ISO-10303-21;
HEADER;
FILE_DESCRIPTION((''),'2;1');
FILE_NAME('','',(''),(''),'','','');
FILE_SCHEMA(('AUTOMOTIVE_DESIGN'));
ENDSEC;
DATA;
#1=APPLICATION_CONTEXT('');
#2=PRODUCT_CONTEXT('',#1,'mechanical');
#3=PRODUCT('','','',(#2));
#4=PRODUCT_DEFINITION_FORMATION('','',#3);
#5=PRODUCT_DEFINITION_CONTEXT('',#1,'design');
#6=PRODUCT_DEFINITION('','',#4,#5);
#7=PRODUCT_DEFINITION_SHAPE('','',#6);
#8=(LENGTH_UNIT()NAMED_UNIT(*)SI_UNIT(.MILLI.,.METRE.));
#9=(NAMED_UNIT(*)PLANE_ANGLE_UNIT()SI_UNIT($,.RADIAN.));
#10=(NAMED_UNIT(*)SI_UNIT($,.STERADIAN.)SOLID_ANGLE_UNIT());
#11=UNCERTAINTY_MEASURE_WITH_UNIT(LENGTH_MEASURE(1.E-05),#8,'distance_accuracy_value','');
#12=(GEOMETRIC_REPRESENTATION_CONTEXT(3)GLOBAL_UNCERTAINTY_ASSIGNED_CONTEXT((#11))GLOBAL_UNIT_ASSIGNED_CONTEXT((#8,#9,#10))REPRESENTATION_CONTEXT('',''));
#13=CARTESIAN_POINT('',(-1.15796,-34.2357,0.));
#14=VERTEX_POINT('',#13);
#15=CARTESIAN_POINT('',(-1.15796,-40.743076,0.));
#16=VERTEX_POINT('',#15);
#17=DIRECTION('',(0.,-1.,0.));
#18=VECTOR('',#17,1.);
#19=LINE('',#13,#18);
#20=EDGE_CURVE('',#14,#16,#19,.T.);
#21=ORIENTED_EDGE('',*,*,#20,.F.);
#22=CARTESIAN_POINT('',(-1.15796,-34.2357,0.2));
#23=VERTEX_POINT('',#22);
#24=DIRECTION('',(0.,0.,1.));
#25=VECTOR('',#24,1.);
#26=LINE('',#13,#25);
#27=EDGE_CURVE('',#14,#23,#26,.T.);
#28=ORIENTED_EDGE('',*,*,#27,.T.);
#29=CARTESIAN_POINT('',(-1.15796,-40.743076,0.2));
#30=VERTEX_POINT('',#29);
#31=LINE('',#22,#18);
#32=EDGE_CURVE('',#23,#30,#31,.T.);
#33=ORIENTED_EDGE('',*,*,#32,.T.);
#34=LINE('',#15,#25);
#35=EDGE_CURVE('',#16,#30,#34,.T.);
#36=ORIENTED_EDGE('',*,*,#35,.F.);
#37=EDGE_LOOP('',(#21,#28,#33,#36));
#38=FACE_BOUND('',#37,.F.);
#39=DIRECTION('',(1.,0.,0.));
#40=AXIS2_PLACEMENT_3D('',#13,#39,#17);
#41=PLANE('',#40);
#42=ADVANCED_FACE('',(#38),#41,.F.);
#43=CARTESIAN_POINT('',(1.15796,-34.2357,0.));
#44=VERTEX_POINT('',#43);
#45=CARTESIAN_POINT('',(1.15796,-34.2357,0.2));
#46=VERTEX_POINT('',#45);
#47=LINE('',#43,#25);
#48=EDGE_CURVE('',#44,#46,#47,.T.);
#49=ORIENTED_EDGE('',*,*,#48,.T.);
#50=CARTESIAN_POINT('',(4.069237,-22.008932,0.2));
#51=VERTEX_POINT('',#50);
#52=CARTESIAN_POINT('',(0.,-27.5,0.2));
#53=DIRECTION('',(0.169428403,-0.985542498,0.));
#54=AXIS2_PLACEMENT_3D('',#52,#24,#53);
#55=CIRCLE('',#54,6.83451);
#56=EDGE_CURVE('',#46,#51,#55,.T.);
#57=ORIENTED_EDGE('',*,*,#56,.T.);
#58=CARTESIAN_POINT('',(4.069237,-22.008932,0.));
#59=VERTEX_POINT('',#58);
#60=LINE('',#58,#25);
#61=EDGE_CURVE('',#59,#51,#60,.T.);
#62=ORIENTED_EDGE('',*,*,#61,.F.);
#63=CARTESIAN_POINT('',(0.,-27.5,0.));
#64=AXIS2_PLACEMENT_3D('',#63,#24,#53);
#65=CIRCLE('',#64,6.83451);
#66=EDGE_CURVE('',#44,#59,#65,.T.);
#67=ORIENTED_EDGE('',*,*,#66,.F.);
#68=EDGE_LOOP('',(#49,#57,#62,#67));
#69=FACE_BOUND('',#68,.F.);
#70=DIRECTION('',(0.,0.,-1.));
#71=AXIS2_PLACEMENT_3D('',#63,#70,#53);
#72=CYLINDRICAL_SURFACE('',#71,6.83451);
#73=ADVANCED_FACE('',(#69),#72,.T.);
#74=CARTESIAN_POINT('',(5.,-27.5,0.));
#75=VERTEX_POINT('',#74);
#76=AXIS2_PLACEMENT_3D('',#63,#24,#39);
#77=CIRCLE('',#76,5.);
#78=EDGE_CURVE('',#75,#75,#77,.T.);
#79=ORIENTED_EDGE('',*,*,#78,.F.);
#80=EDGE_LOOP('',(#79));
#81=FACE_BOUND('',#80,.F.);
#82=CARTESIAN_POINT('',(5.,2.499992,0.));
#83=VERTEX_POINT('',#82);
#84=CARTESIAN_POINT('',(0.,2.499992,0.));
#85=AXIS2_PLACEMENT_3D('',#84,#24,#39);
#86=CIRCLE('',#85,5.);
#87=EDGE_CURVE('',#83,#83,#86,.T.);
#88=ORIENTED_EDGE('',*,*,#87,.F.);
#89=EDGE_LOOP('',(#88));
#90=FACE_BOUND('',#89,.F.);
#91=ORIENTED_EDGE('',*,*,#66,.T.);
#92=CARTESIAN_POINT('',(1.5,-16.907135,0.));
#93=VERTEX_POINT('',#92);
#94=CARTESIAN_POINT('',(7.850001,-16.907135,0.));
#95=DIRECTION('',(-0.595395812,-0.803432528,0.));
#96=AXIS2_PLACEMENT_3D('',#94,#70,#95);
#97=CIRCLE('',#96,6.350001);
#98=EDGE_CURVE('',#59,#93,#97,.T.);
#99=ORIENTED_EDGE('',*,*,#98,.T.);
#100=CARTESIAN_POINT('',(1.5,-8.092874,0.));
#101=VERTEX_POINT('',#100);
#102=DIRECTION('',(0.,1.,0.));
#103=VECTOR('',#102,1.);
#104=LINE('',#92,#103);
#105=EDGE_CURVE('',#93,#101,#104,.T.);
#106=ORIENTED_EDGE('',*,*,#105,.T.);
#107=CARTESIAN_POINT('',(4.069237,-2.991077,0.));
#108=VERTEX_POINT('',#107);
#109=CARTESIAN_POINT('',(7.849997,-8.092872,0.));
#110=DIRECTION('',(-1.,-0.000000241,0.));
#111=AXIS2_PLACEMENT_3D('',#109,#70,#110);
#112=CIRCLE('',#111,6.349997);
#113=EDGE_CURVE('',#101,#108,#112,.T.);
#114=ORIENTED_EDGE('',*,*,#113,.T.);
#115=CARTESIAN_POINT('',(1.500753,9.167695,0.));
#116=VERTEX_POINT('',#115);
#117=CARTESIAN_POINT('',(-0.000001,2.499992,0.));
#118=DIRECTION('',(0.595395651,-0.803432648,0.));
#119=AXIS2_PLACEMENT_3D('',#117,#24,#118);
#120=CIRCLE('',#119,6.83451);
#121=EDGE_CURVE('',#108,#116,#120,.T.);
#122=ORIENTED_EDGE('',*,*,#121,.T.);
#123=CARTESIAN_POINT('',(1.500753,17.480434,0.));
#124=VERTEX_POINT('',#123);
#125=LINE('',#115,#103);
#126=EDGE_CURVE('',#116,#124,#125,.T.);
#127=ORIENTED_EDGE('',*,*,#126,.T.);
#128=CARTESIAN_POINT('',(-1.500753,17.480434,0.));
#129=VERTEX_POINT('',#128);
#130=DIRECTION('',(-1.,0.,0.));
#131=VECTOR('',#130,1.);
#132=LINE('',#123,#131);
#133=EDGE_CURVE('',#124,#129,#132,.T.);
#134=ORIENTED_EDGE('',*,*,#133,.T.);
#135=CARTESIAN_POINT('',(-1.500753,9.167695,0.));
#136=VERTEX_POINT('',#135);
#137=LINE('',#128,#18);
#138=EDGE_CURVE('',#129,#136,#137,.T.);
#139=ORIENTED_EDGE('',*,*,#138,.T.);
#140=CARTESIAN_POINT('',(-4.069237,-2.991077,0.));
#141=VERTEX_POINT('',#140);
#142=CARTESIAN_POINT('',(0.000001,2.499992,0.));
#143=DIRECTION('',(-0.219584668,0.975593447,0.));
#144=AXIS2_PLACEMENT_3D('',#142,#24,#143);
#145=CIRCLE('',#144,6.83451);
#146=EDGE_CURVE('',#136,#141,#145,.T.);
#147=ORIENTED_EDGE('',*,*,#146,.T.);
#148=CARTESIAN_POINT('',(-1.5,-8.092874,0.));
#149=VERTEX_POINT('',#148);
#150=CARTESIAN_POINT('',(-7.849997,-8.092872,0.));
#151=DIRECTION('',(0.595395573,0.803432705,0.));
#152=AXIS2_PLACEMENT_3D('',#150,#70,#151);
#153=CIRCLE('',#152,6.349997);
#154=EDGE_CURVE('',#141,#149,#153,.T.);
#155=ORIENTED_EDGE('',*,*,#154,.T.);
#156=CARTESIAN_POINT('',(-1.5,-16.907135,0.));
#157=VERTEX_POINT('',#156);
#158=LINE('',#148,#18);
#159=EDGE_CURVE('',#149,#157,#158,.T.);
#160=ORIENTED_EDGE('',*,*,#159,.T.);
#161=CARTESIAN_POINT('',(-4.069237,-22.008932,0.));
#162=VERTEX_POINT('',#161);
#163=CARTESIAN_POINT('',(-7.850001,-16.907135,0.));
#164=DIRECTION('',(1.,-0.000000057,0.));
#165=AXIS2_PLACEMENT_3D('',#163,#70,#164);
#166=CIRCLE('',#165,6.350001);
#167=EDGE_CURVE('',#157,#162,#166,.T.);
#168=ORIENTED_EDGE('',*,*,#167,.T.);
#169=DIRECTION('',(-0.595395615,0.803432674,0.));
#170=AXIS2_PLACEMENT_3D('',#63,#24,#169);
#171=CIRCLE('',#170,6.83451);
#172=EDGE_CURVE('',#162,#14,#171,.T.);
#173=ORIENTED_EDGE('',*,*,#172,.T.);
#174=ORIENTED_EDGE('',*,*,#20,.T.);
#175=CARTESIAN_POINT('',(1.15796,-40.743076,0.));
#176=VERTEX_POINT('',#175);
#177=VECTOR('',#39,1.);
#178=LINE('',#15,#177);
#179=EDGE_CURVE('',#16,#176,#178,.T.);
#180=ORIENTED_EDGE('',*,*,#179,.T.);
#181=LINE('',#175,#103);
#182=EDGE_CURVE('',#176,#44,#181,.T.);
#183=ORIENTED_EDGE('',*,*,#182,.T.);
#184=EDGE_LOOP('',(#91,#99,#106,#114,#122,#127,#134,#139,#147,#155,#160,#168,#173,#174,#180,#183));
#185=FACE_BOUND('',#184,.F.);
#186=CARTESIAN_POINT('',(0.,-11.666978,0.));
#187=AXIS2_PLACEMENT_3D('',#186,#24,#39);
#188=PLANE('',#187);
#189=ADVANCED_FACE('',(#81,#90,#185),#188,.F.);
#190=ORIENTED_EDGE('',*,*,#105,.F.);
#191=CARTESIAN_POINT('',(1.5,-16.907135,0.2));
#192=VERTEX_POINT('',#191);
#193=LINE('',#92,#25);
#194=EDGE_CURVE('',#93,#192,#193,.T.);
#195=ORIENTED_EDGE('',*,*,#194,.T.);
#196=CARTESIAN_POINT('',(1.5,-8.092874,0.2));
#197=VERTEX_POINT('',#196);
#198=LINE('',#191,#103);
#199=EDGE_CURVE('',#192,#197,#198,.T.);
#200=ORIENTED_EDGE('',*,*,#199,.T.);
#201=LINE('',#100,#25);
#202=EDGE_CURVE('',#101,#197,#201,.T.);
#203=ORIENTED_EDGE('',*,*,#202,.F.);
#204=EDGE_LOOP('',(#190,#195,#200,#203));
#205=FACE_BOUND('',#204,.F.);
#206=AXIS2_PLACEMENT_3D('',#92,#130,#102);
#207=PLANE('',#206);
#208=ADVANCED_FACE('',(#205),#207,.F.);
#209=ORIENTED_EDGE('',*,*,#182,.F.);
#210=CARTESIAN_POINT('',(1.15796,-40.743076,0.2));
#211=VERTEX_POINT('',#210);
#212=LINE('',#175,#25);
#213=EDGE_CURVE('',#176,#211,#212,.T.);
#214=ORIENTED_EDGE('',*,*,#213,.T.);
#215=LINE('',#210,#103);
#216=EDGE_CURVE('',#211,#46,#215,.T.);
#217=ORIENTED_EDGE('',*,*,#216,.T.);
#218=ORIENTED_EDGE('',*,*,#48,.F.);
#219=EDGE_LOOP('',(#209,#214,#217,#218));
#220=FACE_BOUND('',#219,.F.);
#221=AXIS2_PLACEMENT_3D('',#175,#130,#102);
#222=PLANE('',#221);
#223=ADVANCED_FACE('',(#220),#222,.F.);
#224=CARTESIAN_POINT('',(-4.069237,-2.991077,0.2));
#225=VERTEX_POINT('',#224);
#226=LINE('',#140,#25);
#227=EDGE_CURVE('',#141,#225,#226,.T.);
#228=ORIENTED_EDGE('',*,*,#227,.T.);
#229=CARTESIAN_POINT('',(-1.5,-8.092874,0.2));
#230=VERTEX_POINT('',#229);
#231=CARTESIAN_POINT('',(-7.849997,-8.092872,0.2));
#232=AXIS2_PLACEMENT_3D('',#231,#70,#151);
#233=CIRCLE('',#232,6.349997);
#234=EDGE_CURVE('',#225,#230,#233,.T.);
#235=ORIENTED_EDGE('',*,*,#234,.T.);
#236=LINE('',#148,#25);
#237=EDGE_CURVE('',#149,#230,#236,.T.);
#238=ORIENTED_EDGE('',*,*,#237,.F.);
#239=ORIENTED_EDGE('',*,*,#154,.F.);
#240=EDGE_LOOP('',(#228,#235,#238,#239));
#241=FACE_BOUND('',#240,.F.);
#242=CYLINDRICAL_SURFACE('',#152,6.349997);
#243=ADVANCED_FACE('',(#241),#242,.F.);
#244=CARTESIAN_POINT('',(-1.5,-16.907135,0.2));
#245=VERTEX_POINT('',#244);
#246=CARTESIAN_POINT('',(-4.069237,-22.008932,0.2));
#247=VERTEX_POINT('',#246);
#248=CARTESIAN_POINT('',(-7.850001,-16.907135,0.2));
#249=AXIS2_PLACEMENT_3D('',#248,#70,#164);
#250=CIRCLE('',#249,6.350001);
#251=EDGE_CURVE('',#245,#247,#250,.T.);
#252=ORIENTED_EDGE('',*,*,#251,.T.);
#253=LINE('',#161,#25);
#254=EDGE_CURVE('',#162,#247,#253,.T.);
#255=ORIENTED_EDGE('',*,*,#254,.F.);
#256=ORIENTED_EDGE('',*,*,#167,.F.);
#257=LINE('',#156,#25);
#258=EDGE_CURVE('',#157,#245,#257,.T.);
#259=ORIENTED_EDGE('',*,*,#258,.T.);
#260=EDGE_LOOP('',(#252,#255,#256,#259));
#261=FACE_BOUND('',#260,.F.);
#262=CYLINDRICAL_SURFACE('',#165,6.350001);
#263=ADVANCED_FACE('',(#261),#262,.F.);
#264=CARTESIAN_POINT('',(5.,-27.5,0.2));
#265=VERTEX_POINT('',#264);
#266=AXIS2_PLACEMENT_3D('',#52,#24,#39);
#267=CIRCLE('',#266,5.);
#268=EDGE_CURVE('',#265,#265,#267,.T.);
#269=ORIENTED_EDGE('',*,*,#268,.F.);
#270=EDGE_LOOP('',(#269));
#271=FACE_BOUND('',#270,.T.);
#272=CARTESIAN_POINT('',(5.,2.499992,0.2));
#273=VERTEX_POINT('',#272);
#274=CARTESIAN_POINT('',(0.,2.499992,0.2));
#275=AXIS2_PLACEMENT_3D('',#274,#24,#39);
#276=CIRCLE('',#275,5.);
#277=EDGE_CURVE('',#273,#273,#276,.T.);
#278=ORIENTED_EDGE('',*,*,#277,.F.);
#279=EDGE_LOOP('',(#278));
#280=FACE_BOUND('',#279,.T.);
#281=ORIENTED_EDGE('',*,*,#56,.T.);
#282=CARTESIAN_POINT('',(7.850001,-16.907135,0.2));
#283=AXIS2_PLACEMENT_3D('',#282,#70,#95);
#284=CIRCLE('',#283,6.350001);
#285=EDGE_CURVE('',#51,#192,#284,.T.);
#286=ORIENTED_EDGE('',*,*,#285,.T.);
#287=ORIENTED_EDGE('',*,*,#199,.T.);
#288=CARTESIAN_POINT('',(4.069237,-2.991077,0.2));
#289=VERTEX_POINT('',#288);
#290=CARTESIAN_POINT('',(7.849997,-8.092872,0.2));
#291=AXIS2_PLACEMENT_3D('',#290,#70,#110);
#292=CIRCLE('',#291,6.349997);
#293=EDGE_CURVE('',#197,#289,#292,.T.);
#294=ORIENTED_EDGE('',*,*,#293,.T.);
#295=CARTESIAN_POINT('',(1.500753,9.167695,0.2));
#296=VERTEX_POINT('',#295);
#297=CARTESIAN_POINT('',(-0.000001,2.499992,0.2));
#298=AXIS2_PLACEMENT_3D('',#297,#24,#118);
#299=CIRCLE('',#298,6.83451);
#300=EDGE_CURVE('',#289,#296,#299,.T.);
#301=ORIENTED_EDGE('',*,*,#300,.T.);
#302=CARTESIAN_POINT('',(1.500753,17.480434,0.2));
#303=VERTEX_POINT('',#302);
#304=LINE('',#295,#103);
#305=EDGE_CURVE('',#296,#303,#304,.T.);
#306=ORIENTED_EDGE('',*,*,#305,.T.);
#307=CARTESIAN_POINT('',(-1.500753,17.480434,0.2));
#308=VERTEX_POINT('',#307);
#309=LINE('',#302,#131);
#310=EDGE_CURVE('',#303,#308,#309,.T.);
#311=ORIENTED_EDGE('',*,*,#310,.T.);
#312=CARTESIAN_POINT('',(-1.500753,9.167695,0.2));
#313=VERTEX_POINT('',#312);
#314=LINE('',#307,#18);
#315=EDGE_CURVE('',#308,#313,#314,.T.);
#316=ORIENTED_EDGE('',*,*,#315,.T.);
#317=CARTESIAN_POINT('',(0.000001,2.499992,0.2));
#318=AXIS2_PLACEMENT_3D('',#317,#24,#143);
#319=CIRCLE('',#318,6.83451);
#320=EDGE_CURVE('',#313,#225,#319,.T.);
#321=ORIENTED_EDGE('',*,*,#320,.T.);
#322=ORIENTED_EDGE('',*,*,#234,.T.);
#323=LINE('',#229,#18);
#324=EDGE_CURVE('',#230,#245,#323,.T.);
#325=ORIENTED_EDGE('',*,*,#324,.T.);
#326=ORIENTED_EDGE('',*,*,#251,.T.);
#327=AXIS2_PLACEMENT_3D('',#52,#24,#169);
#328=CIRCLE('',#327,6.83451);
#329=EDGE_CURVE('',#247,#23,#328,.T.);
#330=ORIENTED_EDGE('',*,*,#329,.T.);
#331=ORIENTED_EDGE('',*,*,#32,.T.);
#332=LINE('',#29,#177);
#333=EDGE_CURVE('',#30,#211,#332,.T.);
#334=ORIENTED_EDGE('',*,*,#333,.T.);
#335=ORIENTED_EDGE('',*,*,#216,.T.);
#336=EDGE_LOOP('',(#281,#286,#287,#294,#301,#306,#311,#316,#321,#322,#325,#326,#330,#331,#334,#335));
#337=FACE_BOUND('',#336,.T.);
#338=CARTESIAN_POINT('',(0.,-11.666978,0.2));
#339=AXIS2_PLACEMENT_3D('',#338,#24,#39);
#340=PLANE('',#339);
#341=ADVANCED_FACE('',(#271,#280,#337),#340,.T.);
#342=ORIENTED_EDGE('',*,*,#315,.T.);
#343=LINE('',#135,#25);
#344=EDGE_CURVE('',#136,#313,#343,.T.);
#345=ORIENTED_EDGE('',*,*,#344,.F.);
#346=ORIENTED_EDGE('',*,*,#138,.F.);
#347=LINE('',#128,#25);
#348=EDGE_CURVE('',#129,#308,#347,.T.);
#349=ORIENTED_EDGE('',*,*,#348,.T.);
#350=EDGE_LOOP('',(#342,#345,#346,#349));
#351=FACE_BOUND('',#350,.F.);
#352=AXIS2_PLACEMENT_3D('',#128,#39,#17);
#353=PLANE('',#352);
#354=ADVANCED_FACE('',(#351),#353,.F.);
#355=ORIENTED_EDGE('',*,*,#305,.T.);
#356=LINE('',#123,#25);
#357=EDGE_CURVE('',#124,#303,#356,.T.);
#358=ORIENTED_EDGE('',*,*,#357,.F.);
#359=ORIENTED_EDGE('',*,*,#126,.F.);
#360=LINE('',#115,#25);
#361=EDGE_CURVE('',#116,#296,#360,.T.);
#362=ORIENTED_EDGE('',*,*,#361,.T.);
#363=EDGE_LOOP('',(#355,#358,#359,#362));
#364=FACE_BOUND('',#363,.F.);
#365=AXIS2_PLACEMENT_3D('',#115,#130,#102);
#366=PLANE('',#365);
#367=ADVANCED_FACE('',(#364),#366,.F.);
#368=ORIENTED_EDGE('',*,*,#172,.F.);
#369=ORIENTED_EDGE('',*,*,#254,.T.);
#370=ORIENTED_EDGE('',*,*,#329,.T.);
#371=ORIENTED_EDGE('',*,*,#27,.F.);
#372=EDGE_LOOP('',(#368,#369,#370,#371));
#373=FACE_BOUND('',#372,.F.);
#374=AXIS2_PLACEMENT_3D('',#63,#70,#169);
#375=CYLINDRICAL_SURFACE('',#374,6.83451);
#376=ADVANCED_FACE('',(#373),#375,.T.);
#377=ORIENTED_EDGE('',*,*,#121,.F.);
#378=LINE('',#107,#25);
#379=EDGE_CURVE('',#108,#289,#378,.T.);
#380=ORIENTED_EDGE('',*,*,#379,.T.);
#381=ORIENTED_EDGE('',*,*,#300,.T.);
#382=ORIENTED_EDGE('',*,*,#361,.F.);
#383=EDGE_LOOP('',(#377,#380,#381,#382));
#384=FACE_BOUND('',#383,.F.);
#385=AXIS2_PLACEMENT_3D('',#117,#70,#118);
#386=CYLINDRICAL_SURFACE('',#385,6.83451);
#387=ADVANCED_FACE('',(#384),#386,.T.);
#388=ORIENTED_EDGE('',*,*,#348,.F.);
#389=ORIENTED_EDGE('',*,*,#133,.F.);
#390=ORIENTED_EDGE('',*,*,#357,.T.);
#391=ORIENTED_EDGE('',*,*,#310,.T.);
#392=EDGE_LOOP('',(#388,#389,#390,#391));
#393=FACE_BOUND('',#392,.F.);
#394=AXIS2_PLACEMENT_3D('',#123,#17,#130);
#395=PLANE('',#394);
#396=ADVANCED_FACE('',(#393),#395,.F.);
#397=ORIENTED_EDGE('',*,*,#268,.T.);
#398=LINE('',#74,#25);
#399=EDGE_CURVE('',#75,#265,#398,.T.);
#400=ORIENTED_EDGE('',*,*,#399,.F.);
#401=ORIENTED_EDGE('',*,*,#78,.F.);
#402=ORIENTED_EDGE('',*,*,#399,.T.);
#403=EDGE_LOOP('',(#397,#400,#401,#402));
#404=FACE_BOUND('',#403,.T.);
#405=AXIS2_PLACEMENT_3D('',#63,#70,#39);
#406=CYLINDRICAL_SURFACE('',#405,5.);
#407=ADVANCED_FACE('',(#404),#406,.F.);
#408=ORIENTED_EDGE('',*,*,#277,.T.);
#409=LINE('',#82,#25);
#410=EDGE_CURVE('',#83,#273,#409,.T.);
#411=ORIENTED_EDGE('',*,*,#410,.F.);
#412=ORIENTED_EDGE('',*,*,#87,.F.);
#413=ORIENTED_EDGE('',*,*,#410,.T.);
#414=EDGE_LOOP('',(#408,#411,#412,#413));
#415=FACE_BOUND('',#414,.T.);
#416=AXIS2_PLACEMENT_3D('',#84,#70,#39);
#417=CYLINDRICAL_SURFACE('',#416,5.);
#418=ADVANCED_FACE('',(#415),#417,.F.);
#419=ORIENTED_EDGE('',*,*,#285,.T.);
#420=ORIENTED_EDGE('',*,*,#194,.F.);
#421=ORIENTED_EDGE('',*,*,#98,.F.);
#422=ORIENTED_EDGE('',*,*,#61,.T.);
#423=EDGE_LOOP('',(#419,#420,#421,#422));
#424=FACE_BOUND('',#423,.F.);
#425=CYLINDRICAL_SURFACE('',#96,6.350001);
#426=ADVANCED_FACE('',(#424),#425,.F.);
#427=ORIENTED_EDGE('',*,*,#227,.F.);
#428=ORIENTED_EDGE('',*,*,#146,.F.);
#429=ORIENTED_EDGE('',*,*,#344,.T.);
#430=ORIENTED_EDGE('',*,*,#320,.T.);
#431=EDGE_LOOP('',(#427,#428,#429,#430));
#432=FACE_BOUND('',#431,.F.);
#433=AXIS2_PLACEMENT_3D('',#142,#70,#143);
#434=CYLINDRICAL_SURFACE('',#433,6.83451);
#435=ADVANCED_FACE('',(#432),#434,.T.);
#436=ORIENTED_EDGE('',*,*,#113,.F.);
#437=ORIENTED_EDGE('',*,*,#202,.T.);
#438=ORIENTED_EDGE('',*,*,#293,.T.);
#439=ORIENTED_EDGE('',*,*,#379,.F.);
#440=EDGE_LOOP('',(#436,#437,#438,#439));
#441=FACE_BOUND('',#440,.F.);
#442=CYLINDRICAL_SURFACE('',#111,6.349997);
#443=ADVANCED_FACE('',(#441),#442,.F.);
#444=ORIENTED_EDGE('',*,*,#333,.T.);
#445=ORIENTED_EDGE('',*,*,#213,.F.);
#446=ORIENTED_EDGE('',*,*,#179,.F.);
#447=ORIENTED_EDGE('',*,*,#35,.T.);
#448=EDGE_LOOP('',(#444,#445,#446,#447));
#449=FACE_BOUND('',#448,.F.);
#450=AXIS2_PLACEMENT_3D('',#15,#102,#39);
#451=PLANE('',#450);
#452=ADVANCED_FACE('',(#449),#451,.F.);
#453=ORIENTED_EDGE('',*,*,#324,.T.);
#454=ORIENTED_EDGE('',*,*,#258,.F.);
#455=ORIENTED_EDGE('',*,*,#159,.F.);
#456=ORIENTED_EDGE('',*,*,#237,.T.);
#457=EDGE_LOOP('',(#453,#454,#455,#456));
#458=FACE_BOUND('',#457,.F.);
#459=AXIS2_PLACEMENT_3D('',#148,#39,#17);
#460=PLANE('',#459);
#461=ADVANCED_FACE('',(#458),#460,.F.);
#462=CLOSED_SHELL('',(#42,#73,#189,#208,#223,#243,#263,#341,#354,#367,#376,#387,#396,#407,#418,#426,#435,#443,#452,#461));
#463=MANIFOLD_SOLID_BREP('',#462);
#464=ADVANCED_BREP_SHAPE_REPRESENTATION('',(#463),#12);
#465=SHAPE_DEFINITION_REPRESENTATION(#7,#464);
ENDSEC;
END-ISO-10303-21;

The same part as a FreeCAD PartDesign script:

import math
import FreeCAD as App
import Part
import Sketcher

V = App.Vector
Q = App.Units.Quantity

doc = App.newDocument("Part")
body = doc.addObject("PartDesign::Body", "Body")

sketch1 = body.newObject("Sketcher::SketchObject", "Sketch")
sketch1.AttachmentSupport = (doc.getObject("XY_Plane"), [""])
sketch1.MapMode = "FlatFace"
sketch1.addGeometry([
    Part.ArcOfCircle(Part.Circle(V(-7.9, -16.9, 0), V(0, 0, 1), 6.4), math.radians(-53), math.radians(0)),
    Part.ArcOfCircle(Part.Circle(V(0, -27.5, 0), V(0, 0, 1), 6.8), math.radians(127), math.radians(260)),
    Part.LineSegment(V(-1.2, -34.2, 0), V(-1.2, -40.7, 0)),
    Part.LineSegment(V(-1.2, -40.7, 0), V(1.2, -40.7, 0)),
    Part.LineSegment(V(1.2, -40.7, 0), V(1.2, -34.2, 0)),
    Part.ArcOfCircle(Part.Circle(V(0, -27.5, 0), V(0, 0, 1), 6.8), math.radians(-80), math.radians(53)),
    Part.ArcOfCircle(Part.Circle(V(7.9, -16.9, 0), V(0, 0, 1), 6.4), math.radians(-180), math.radians(-127)),
    Part.LineSegment(V(1.5, -16.9, 0), V(1.5, -8.1, 0)),
    Part.ArcOfCircle(Part.Circle(V(7.8, -8.1, 0), V(0, 0, 1), 6.3), math.radians(127), math.radians(180)),
    Part.ArcOfCircle(Part.Circle(V(0, 2.5, 0), V(0, 0, 1), 6.8), math.radians(-53), math.radians(77)),
    Part.LineSegment(V(1.5, 9.2, 0), V(1.5, 17.5, 0)),
    Part.LineSegment(V(1.5, 17.5, 0), V(-1.5, 17.5, 0)),
    Part.LineSegment(V(-1.5, 17.5, 0), V(-1.5, 9.2, 0)),
    Part.ArcOfCircle(Part.Circle(V(0, 2.5, 0), V(0, 0, 1), 6.8), math.radians(103), math.radians(233)),
    Part.ArcOfCircle(Part.Circle(V(-7.8, -8.1, 0), V(0, 0, 1), 6.3), math.radians(0), math.radians(53)),
    Part.LineSegment(V(-1.5, -8.1, 0), V(-1.5, -16.9, 0)),
    Part.Circle(V(0, -27.5, 0), V(0, 0, 1), 5),
    Part.Circle(V(0, 2.5, 0), V(0, 0, 1), 5),
], False)
sketch1.addConstraint([
    Sketcher.Constraint("Tangent", 0, 1, 1, 1),
    Sketcher.Constraint("Coincident", 1, 2, 2, 1),
    Sketcher.Constraint("Coincident", 2, 2, 3, 1),
    Sketcher.Constraint("Coincident", 3, 2, 4, 1),
    Sketcher.Constraint("Coincident", 4, 2, 5, 1),
    Sketcher.Constraint("Tangent", 5, 2, 6, 2),
    Sketcher.Constraint("Tangent", 6, 1, 7, 1),
    Sketcher.Constraint("Tangent", 7, 2, 8, 2),
    Sketcher.Constraint("Tangent", 8, 1, 9, 1),
    Sketcher.Constraint("Coincident", 9, 2, 10, 1),
    Sketcher.Constraint("Coincident", 10, 2, 11, 1),
    Sketcher.Constraint("Coincident", 11, 2, 12, 1),
    Sketcher.Constraint("Coincident", 12, 2, 13, 1),
    Sketcher.Constraint("Tangent", 13, 2, 14, 2),
    Sketcher.Constraint("Tangent", 14, 1, 15, 1),
    Sketcher.Constraint("Tangent", 15, 2, 0, 2),
    Sketcher.Constraint("Vertical", 2),
    Sketcher.Constraint("Horizontal", 3),
    Sketcher.Constraint("Vertical", 4),
    Sketcher.Constraint("Vertical", 7),
    Sketcher.Constraint("Vertical", 10),
    Sketcher.Constraint("Horizontal", 11),
    Sketcher.Constraint("Vertical", 12),
    Sketcher.Constraint("Vertical", 15),
    Sketcher.Constraint("Coincident", 5, 3, 1, 3),
    Sketcher.Constraint("Coincident", 13, 3, 9, 3),
    Sketcher.Constraint("Coincident", 16, 3, 1, 3),
    Sketcher.Constraint("Coincident", 17, 3, 9, 3),
    Sketcher.Constraint("Equal", 1, 5),
    Sketcher.Constraint("Equal", 0, 6),
    Sketcher.Constraint("Equal", 5, 9),
    Sketcher.Constraint("Equal", 9, 13),
    Sketcher.Constraint("Equal", 8, 14),
    Sketcher.Constraint("Equal", 16, 17),
    Sketcher.Constraint("Symmetric", 0, 3, 6, 3, -2),
    Sketcher.Constraint("Symmetric", 9, 2, 12, 2, -2),
    Sketcher.Constraint("Horizontal", 1, 2, 4, 2),
    Sketcher.Constraint("Vertical", 5, 2, 8, 1),
    Sketcher.Constraint("Diameter", 16, Q("10 mm")),
    Sketcher.Constraint("Radius", 0, Q("6.350001 mm")),
    Sketcher.Constraint("DistanceX", 14, 1, 7, 2, Q("3 mm")),
    Sketcher.Constraint("DistanceY", 1, 3, -1, 1, Q("27.5 mm")),
    Sketcher.Constraint("Radius", 1, Q("6.83451 mm")),
    Sketcher.Constraint("DistanceX", 3, 1, 3, 2, Q("2.31592 mm")),
    Sketcher.Constraint("DistanceY", 7, 1, 7, 2, Q("8.814261 mm")),
    Sketcher.Constraint("DistanceY", 10, 1, 10, 2, Q("8.312739 mm")),
    Sketcher.Constraint("DistanceX", 11, 2, 11, 1, Q("3.001506 mm")),
    Sketcher.Constraint("DistanceY", 2, 2, 2, 1, Q("6.507376 mm")),
])
pad1 = body.newObject("PartDesign::Pad", "Pad")
pad1.Profile = sketch1
pad1.Length = 0.2

doc.recompute()
